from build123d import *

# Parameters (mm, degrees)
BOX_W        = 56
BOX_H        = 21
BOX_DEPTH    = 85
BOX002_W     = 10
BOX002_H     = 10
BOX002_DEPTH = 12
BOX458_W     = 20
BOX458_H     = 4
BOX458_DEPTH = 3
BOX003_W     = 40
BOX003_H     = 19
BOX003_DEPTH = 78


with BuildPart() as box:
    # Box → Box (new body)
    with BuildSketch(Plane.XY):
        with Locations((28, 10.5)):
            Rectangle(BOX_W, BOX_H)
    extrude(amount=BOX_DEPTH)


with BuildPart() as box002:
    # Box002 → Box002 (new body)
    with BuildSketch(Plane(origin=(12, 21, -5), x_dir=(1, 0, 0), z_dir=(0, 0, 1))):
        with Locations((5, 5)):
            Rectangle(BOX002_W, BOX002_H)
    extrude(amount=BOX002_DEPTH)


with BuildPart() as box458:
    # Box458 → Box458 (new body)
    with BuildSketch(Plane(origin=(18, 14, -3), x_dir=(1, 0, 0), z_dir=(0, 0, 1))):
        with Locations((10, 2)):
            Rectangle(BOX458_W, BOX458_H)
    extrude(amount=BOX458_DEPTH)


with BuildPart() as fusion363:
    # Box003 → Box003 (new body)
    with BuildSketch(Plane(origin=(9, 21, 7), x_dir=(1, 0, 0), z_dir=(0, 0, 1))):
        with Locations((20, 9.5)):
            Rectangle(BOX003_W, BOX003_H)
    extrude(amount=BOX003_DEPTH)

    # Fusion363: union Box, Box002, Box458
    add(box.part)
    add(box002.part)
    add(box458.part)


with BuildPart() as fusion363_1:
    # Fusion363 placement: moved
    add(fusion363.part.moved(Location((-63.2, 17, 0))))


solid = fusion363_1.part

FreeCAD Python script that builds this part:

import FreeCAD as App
import Part
import Sketcher
from FreeCAD import Vector
Q = App.Units.Quantity

doc = App.newDocument("Part")
body = doc.addObject("PartDesign::Body", "Body")

# Sketch on XY plane
sketch1 = doc.addObject("Sketcher::SketchObject", "Sketch")
body.addObject(sketch1)
sketch1.AttachmentSupport = (doc.XY_Plane, [""])
sketch1.MapMode = "FlatFace"
sketch1.addGeometry([
    Part.LineSegment(Vector(0, 21, 0), Vector(0, 0, 0)),
    Part.LineSegment(Vector(0, 0, 0), Vector(56, 0, 0)),
    Part.LineSegment(Vector(56, 0, 0), Vector(56, 21, 0)),
    Part.LineSegment(Vector(56, 21, 0), Vector(0, 21, 0)),
], False)
sketch1.addConstraint([
    Sketcher.Constraint("Coincident", 0, 2, 1, 1),
    Sketcher.Constraint("Coincident", 1, 2, 2, 1),
    Sketcher.Constraint("Coincident", 2, 2, 3, 1),
    Sketcher.Constraint("Coincident", 3, 2, 0, 1),
    Sketcher.Constraint("Vertical", 0),
    Sketcher.Constraint("Horizontal", 1),
    Sketcher.Constraint("Vertical", 2),
    Sketcher.Constraint("Horizontal", 3),
    Sketcher.Constraint("Coincident", 0, 2, -1, 1),
    Sketcher.Constraint("DistanceX", 1, 1, 1, 2, Q("56 mm")),
    Sketcher.Constraint("DistanceY", 0, 2, 0, 1, Q("21 mm")),
])
pad1 = doc.addObject("PartDesign::Pad", "Pad")
body.addObject(pad1)
pad1.Profile = sketch1
pad1.Length = 85
body2 = doc.addObject("PartDesign::Body", "Body001")

# Sketch on XY plane
sketch2 = doc.addObject("Sketcher::SketchObject", "Sketch001")
body2.addObject(sketch2)
sketch2.AttachmentSupport = (doc.getObject("XY_Plane001"), [""])
sketch2.MapMode = "FlatFace"
sketch2.AttachmentOffset = App.Placement(Vector(0, 0, -5), App.Rotation())
sketch2.addGeometry([
    Part.LineSegment(Vector(12, 31, 0), Vector(12, 21, 0)),
    Part.LineSegment(Vector(12, 21, 0), Vector(22, 21, 0)),
    Part.LineSegment(Vector(22, 21, 0), Vector(22, 31, 0)),
    Part.LineSegment(Vector(22, 31, 0), Vector(12, 31, 0)),
], False)
sketch2.addConstraint([
    Sketcher.Constraint("Coincident", 0, 2, 1, 1),
    Sketcher.Constraint("Coincident", 1, 2, 2, 1),
    Sketcher.Constraint("Coincident", 2, 2, 3, 1),
    Sketcher.Constraint("Coincident", 3, 2, 0, 1),
    Sketcher.Constraint("Vertical", 0),
    Sketcher.Constraint("Horizontal", 1),
    Sketcher.Constraint("Vertical", 2),
    Sketcher.Constraint("Horizontal", 3),
    Sketcher.Constraint("Equal", 3, 0),
    Sketcher.Constraint("DistanceX", 1, 1, 1, 2, Q("10 mm")),
    Sketcher.Constraint("DistanceX", -1, 1, 0, 2, Q("12 mm")),
    Sketcher.Constraint("DistanceY", -1, 1, 0, 2, Q("21 mm")),
])
pad2 = doc.addObject("PartDesign::Pad", "Pad001")
body2.addObject(pad2)
pad2.Profile = sketch2
pad2.Length = 12
body3 = doc.addObject("PartDesign::Body", "Body002")

# Sketch on XY plane
sketch3 = doc.addObject("Sketcher::SketchObject", "Sketch002")
body3.addObject(sketch3)
sketch3.AttachmentSupport = (doc.getObject("XY_Plane002"), [""])
sketch3.MapMode = "FlatFace"
sketch3.AttachmentOffset = App.Placement(Vector(0, 0, -3), App.Rotation())
sketch3.addGeometry([
    Part.LineSegment(Vector(18, 18, 0), Vector(18, 14, 0)),
    Part.LineSegment(Vector(18, 14, 0), Vector(38, 14, 0)),
    Part.LineSegment(Vector(38, 14, 0), Vector(38, 18, 0)),
    Part.LineSegment(Vector(38, 18, 0), Vector(18, 18, 0)),
], False)
sketch3.addConstraint([
    Sketcher.Constraint("Coincident", 0, 2, 1, 1),
    Sketcher.Constraint("Coincident", 1, 2, 2, 1),
    Sketcher.Constraint("Coincident", 2, 2, 3, 1),
    Sketcher.Constraint("Coincident", 3, 2, 0, 1),
    Sketcher.Constraint("Vertical", 0),
    Sketcher.Constraint("Horizontal", 1),
    Sketcher.Constraint("Vertical", 2),
    Sketcher.Constraint("Horizontal", 3),
    Sketcher.Constraint("DistanceX", 1, 1, 1, 2, Q("20 mm")),
    Sketcher.Constraint("DistanceY", 0, 2, 0, 1, Q("4 mm")),
    Sketcher.Constraint("DistanceX", -1, 1, 0, 2, Q("18 mm")),
    Sketcher.Constraint("DistanceY", -1, 1, 0, 2, Q("14 mm")),
])
pad3 = doc.addObject("PartDesign::Pad", "Pad002")
body3.addObject(pad3)
pad3.Profile = sketch3
pad3.Length = 3
body4 = doc.addObject("PartDesign::Body", "Body003")

# Sketch on XY plane
sketch4 = doc.addObject("Sketcher::SketchObject", "Sketch003")
body4.addObject(sketch4)
sketch4.AttachmentSupport = (doc.getObject("XY_Plane003"), [""])
sketch4.MapMode = "FlatFace"
sketch4.AttachmentOffset = App.Placement(Vector(0, 0, 7), App.Rotation())
sketch4.addGeometry([
    Part.LineSegment(Vector(9, 40, 0), Vector(9, 21, 0)),
    Part.LineSegment(Vector(9, 21, 0), Vector(49, 21, 0)),
    Part.LineSegment(Vector(49, 21, 0), Vector(49, 40, 0)),
    Part.LineSegment(Vector(49, 40, 0), Vector(9, 40, 0)),
], False)
sketch4.addConstraint([
    Sketcher.Constraint("Coincident", 0, 2, 1, 1),
    Sketcher.Constraint("Coincident", 1, 2, 2, 1),
    Sketcher.Constraint("Coincident", 2, 2, 3, 1),
    Sketcher.Constraint("Coincident", 3, 2, 0, 1),
    Sketcher.Constraint("Vertical", 0),
    Sketcher.Constraint("Horizontal", 1),
    Sketcher.Constraint("Vertical", 2),
    Sketcher.Constraint("Horizontal", 3),
    Sketcher.Constraint("DistanceX", 1, 1, 1, 2, Q("40 mm")),
    Sketcher.Constraint("DistanceY", 0, 2, 0, 1, Q("19 mm")),
    Sketcher.Constraint("DistanceX", -1, 1, 0, 2, Q("9 mm")),
    Sketcher.Constraint("DistanceY", -1, 1, 0, 2, Q("21 mm")),
])
pad4 = doc.addObject("PartDesign::Pad", "Pad003")
body4.addObject(pad4)
pad4.Profile = sketch4
pad4.Length = 78
doc.recompute()

boolean = doc.addObject("PartDesign::Boolean", "Boolean")
body4.addObject(boolean)
boolean.Type = "Fuse"
boolean.addObjects([body])
doc.recompute()

boolean2 = doc.addObject("PartDesign::Boolean", "Boolean001")
body4.addObject(boolean2)
boolean2.Type = "Fuse"
boolean2.addObjects([body2])
doc.recompute()

boolean3 = doc.addObject("PartDesign::Boolean", "Boolean002")
body4.addObject(boolean3)
boolean3.Type = "Fuse"
boolean3.addObjects([body3])
body5 = doc.addObject("PartDesign::Body", "Body004")
doc.recompute()

body4.Placement = App.Placement(Vector(-63.2, 17, 0), App.Rotation(Vector(0, 0, 1), 0))
boolean4 = doc.addObject("PartDesign::Boolean", "Boolean003")
body5.addObject(boolean4)
boolean4.Type = "Fuse"
boolean4.addObjects([body4])

doc.recompute()
